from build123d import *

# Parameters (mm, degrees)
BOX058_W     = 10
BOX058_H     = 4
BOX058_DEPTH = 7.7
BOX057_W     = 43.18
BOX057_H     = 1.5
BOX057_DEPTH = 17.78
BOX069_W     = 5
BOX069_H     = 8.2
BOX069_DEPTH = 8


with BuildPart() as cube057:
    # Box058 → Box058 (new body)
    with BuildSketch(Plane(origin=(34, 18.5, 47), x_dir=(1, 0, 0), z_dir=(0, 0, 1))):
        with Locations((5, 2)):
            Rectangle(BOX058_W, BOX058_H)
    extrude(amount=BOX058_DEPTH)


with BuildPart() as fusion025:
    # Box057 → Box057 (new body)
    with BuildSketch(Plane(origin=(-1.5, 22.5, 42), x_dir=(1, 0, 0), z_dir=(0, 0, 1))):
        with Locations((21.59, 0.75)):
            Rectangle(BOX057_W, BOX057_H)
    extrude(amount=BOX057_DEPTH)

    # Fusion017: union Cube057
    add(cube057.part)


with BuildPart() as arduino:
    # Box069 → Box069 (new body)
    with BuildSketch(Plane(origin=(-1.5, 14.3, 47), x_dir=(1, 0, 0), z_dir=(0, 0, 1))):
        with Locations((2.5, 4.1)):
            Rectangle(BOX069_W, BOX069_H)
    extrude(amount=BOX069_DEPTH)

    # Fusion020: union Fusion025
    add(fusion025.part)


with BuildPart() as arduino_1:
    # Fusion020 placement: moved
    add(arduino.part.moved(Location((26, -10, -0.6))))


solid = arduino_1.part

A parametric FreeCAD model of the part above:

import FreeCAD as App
import Part
import Sketcher

V = App.Vector
Q = App.Units.Quantity


def add_polygon(sketch, points):
    """Adds a closed chain of lines whose ends are joined by coincident constraints."""
    first, n = sketch.GeometryCount, len(points)
    for a, b in zip(points, points[1:] + points[:1]):
        sketch.addGeometry(Part.LineSegment(App.Vector(*a, 0), App.Vector(*b, 0)), False)
    for i in range(n):
        sketch.addConstraint(Sketcher.Constraint("Coincident", first + i, 2, first + (i + 1) % n, 1))

doc = App.newDocument("Part")
body = doc.addObject("PartDesign::Body", "Body")

# Sketch on XY plane
sketch1 = body.newObject("Sketcher::SketchObject", "Sketch")
sketch1.AttachmentSupport = (doc.getObject("XY_Plane"), [""])
sketch1.MapMode = "FlatFace"
sketch1.AttachmentOffset = App.Placement(V(0, 0, 47), App.Rotation())
add_polygon(sketch1, [(34, 22.5), (34, 18.5), (44, 18.5), (44, 22.5)])  # lines 0-3
sketch1.addConstraint([
    Sketcher.Constraint("Vertical", 0),
    Sketcher.Constraint("Horizontal", 1),
    Sketcher.Constraint("Vertical", 2),
    Sketcher.Constraint("Horizontal", 3),
    Sketcher.Constraint("DistanceX", 1, 1, 1, 2, Q("10 mm")),
    Sketcher.Constraint("DistanceY", 0, 2, 0, 1, Q("4 mm")),
    Sketcher.Constraint("DistanceX", -1, 1, 0, 2, Q("34 mm")),
    Sketcher.Constraint("DistanceY", -1, 1, 0, 2, Q("18.5 mm")),
])
pad1 = body.newObject("PartDesign::Pad", "Pad")
pad1.Profile = sketch1
pad1.Length = 7.7
body2 = doc.addObject("PartDesign::Body", "Body001")

# Sketch on XY plane
sketch2 = body2.newObject("Sketcher::SketchObject", "Sketch001")
sketch2.AttachmentSupport = (doc.getObject("XY_Plane001"), [""])
sketch2.MapMode = "FlatFace"
sketch2.AttachmentOffset = App.Placement(V(0, 0, 42), App.Rotation())
add_polygon(sketch2, [(-1.5, 24), (-1.5, 22.5), (41.68, 22.5), (41.68, 24)])  # lines 0-3
sketch2.addConstraint([
    Sketcher.Constraint("Vertical", 0),
    Sketcher.Constraint("Horizontal", 1),
    Sketcher.Constraint("Vertical", 2),
    Sketcher.Constraint("Horizontal", 3),
    Sketcher.Constraint("DistanceY", 0, 2, 0, 1, Q("1.5 mm")),
    Sketcher.Constraint("DistanceY", -1, 1, 2, 2, Q("24 mm")),
    Sketcher.Constraint("DistanceX", 1, 1, 1, 2, Q("43.18 mm")),
    Sketcher.Constraint("DistanceX", 0, 2, -1, 1, Q("1.5 mm")),
])
pad2 = body2.newObject("PartDesign::Pad", "Pad001")
pad2.Profile = sketch2
pad2.Length = 17.78
doc.recompute()

boolean = body2.newObject("PartDesign::Boolean", "Boolean")
boolean.Type = "Fuse"
boolean.addObjects([body])
body3 = doc.addObject("PartDesign::Body", "Body002")

# Sketch on XY plane
sketch3 = body3.newObject("Sketcher::SketchObject", "Sketch002")
sketch3.AttachmentSupport = (doc.getObject("XY_Plane002"), [""])
sketch3.MapMode = "FlatFace"
sketch3.AttachmentOffset = App.Placement(V(0, 0, 47), App.Rotation())
add_polygon(sketch3, [(-1.5, 22.5), (-1.5, 14.3), (3.5, 14.3), (3.5, 22.5)])  # lines 0-3
sketch3.addConstraint([
    Sketcher.Constraint("Vertical", 0),
    Sketcher.Constraint("Horizontal", 1),
    Sketcher.Constraint("Vertical", 2),
    Sketcher.Constraint("Horizontal", 3),
    Sketcher.Constraint("DistanceX", 1, 1, 1, 2, Q("5 mm")),
    Sketcher.Constraint("DistanceY", 0, 2, 0, 1, Q("8.2 mm")),
    Sketcher.Constraint("DistanceX", 0, 2, -1, 1, Q("1.5 mm")),
    Sketcher.Constraint("DistanceY", -1, 1, 0, 2, Q("14.3 mm")),
])
pad3 = body3.newObject("PartDesign::Pad", "Pad002")
pad3.Profile = sketch3
pad3.Length = 8
doc.recompute()

boolean2 = body3.newObject("PartDesign::Boolean", "Boolean001")
boolean2.Type = "Fuse"
boolean2.addObjects([body2])
body4 = doc.addObject("PartDesign::Body", "Body003")
doc.recompute()

body3.Placement = App.Placement(V(26, -10, -0.6), App.Rotation(V(0, 0, 1), 0))
boolean3 = body4.newObject("PartDesign::Boolean", "Boolean002")
boolean3.Type = "Fuse"
boolean3.addObjects([body3])

doc.recompute()
